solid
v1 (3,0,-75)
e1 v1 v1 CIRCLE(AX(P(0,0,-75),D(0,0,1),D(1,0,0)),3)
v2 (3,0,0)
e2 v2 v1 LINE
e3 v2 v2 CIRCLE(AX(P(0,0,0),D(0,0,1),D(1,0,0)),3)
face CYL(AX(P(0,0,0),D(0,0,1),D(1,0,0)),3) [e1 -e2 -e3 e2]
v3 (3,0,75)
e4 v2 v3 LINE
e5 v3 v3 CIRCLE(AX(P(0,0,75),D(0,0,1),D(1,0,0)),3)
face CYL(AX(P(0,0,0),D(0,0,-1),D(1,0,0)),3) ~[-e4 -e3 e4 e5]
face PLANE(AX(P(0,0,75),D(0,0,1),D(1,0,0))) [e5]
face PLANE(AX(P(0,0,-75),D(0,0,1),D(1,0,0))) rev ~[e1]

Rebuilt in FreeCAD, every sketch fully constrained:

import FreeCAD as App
import Part
import Sketcher

V = App.Vector
Q = App.Units.Quantity

doc = App.newDocument("Part")
body = doc.addObject("PartDesign::Body", "Body")

# Sketch on XY plane
sketch1 = body.newObject("Sketcher::SketchObject", "Sketch")
sketch1.AttachmentSupport = (doc.getObject("XY_Plane"), [""])
sketch1.MapMode = "FlatFace"
sketch1.addGeometry(Part.Circle(V(0, 0, 0), V(0, 0, 1), 3), False)
sketch1.addConstraint(Sketcher.Constraint("Coincident", 0, 3, -1, 1))
sketch1.addConstraint(Sketcher.Constraint("Diameter", 0, Q("6 mm")))
pad1 = body.newObject("PartDesign::Pad", "Pad")
pad1.Profile = sketch1
pad1.Length = 150
pad1.Midplane = True

doc.recompute()
